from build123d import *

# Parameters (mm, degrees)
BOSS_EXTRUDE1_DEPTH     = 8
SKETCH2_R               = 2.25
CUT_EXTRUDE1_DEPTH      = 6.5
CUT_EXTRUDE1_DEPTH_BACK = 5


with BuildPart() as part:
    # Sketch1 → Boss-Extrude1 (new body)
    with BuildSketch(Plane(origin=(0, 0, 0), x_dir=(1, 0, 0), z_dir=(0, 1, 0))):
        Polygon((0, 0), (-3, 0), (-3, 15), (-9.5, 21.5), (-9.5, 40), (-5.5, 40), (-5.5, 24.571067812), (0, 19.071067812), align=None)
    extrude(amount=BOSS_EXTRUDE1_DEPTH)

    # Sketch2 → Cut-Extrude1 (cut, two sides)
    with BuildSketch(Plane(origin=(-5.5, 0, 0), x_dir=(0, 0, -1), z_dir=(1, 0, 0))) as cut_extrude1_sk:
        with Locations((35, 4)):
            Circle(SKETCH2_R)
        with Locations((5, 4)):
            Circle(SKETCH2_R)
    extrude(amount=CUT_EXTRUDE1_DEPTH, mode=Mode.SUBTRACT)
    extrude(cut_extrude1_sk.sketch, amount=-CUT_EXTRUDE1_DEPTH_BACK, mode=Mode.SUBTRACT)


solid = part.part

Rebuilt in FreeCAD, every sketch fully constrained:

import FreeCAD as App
import Part
import Sketcher

V = App.Vector
Q = App.Units.Quantity

doc = App.newDocument("Part")
params = doc.addObject("Spreadsheet::Sheet", "Params")
for row, (alias, value) in enumerate([
    ("sketch1_width", "3 mm"),
    ("sketch1_width2", "4 mm"),
    ("sketch1_height", "15 mm"),
    ("sketch1_height2", "18.5 mm"),
    ("pad1_length", "8 mm"),
    ("sketch2_diameter", "4.5 mm"),
], start=1):
    params.set(f"A{row}", alias)
    params.set(f"B{row}", "=" + value)
    params.setAlias(f"B{row}", alias)

body = doc.addObject("PartDesign::Body", "Body")

# Sketch on XZ plane
sketch1 = body.newObject("Sketcher::SketchObject", "Sketch")
sketch1.AttachmentSupport = (doc.getObject("XZ_Plane"), [""])
sketch1.MapMode = "FlatFace"
sketch1.addGeometry([
    Part.LineSegment(V(-3, 0, 0), V(0, 0, 0)),  # 0
    Part.LineSegment(V(0, 0, 0), V(0, -19.071068, 0)),  # 1
    Part.LineSegment(V(0, -19.071068, 0), V(-5.5, -24.571068, 0)),  # 2
    Part.LineSegment(V(-5.5, -24.571068, 0), V(-5.5, -40, 0)),  # 3
    Part.LineSegment(V(-5.5, -40, 0), V(-9.5, -40, 0)),  # 4
    Part.LineSegment(V(-9.5, -40, 0), V(-9.5, -21.5, 0)),  # 5
    Part.LineSegment(V(-9.5, -21.5, 0), V(-3, -15, 0)),  # 6
    Part.LineSegment(V(-3, -15, 0), V(-3, 0, 0)),  # 7
], False)
sketch1.addConstraint([
    Sketcher.Constraint("Coincident", 0, 2, 1, 1),
    Sketcher.Constraint("Coincident", 1, 2, 2, 1),
    Sketcher.Constraint("Coincident", 2, 2, 3, 1),
    Sketcher.Constraint("Coincident", 3, 2, 4, 1),
    Sketcher.Constraint("Coincident", 4, 2, 5, 1),
    Sketcher.Constraint("Coincident", 5, 2, 6, 1),
    Sketcher.Constraint("Coincident", 6, 2, 7, 1),
    Sketcher.Constraint("Coincident", 7, 2, 0, 1),
    Sketcher.Constraint("Horizontal", 0),
    Sketcher.Constraint("Vertical", 1),
    Sketcher.Constraint("Vertical", 3),
    Sketcher.Constraint("Horizontal", 4),
    Sketcher.Constraint("Vertical", 5),
    Sketcher.Constraint("Vertical", 7),
    Sketcher.Constraint("Coincident", 0, 2, -1, 1),
    Sketcher.Constraint("Parallel", 2, 6),
    Sketcher.Constraint("DistanceX", 0, 1, 0, 2, Q("3 mm")),
    Sketcher.Constraint("DistanceX", 4, 2, 4, 1, Q("4 mm")),
    Sketcher.Constraint("DistanceY", 7, 1, 7, 2, Q("15 mm")),
    Sketcher.Constraint("Angle", 2, Q("-135 deg")),
    Sketcher.Constraint("DistanceY", 5, 1, 5, 2, Q("18.5 mm")),
    Sketcher.Constraint("DistanceY", 3, 2, -1, 1, Q("40 mm")),
    Sketcher.Constraint("DistanceY", 1, 2, 1, 1, Q("19.071068 mm")),
])
sketch1.setExpression("Constraints[16]", "Params.sketch1_width")
sketch1.setExpression("Constraints[17]", "Params.sketch1_width2")
sketch1.setExpression("Constraints[18]", "Params.sketch1_height")
sketch1.setExpression("Constraints[20]", "Params.sketch1_height2")
pad1 = body.newObject("PartDesign::Pad", "Pad")
pad1.Profile = sketch1
pad1.setExpression("Length", "Params.pad1_length")
pad1.Reversed = True

# Sketch on YZ plane
sketch2 = body.newObject("Sketcher::SketchObject", "Sketch001")
sketch2.AttachmentSupport = (doc.getObject("YZ_Plane"), [""])
sketch2.MapMode = "FlatFace"
sketch2.AttachmentOffset = App.Placement(V(0, 0, -5.5), App.Rotation())
sketch2.addGeometry([
    Part.Circle(V(4, -35, 0), V(0, 0, 1), 2.25),
    Part.Circle(V(4, -5, 0), V(0, 0, 1), 2.25),
], False)
sketch2.addConstraint([
    Sketcher.Constraint("Equal", 0, 1),
    Sketcher.Constraint("Vertical", 0, 3, 1, 3),
    Sketcher.Constraint("Diameter", 0, Q("4.5 mm")),
    Sketcher.Constraint("DistanceX", -1, 1, 0, 3, Q("4 mm")),
    Sketcher.Constraint("DistanceY", 0, 3, -1, 1, Q("35 mm")),
    Sketcher.Constraint("DistanceY", 1, 3, -1, 1, Q("5 mm")),
])
sketch2.setExpression("Constraints[2]", "Params.sketch2_diameter")
pocket1 = body.newObject("PartDesign::Pocket", "Pocket")
pocket1.Profile = sketch2
pocket1.Type = "ThroughAll"
pocket1.Midplane = True

doc.recompute()
